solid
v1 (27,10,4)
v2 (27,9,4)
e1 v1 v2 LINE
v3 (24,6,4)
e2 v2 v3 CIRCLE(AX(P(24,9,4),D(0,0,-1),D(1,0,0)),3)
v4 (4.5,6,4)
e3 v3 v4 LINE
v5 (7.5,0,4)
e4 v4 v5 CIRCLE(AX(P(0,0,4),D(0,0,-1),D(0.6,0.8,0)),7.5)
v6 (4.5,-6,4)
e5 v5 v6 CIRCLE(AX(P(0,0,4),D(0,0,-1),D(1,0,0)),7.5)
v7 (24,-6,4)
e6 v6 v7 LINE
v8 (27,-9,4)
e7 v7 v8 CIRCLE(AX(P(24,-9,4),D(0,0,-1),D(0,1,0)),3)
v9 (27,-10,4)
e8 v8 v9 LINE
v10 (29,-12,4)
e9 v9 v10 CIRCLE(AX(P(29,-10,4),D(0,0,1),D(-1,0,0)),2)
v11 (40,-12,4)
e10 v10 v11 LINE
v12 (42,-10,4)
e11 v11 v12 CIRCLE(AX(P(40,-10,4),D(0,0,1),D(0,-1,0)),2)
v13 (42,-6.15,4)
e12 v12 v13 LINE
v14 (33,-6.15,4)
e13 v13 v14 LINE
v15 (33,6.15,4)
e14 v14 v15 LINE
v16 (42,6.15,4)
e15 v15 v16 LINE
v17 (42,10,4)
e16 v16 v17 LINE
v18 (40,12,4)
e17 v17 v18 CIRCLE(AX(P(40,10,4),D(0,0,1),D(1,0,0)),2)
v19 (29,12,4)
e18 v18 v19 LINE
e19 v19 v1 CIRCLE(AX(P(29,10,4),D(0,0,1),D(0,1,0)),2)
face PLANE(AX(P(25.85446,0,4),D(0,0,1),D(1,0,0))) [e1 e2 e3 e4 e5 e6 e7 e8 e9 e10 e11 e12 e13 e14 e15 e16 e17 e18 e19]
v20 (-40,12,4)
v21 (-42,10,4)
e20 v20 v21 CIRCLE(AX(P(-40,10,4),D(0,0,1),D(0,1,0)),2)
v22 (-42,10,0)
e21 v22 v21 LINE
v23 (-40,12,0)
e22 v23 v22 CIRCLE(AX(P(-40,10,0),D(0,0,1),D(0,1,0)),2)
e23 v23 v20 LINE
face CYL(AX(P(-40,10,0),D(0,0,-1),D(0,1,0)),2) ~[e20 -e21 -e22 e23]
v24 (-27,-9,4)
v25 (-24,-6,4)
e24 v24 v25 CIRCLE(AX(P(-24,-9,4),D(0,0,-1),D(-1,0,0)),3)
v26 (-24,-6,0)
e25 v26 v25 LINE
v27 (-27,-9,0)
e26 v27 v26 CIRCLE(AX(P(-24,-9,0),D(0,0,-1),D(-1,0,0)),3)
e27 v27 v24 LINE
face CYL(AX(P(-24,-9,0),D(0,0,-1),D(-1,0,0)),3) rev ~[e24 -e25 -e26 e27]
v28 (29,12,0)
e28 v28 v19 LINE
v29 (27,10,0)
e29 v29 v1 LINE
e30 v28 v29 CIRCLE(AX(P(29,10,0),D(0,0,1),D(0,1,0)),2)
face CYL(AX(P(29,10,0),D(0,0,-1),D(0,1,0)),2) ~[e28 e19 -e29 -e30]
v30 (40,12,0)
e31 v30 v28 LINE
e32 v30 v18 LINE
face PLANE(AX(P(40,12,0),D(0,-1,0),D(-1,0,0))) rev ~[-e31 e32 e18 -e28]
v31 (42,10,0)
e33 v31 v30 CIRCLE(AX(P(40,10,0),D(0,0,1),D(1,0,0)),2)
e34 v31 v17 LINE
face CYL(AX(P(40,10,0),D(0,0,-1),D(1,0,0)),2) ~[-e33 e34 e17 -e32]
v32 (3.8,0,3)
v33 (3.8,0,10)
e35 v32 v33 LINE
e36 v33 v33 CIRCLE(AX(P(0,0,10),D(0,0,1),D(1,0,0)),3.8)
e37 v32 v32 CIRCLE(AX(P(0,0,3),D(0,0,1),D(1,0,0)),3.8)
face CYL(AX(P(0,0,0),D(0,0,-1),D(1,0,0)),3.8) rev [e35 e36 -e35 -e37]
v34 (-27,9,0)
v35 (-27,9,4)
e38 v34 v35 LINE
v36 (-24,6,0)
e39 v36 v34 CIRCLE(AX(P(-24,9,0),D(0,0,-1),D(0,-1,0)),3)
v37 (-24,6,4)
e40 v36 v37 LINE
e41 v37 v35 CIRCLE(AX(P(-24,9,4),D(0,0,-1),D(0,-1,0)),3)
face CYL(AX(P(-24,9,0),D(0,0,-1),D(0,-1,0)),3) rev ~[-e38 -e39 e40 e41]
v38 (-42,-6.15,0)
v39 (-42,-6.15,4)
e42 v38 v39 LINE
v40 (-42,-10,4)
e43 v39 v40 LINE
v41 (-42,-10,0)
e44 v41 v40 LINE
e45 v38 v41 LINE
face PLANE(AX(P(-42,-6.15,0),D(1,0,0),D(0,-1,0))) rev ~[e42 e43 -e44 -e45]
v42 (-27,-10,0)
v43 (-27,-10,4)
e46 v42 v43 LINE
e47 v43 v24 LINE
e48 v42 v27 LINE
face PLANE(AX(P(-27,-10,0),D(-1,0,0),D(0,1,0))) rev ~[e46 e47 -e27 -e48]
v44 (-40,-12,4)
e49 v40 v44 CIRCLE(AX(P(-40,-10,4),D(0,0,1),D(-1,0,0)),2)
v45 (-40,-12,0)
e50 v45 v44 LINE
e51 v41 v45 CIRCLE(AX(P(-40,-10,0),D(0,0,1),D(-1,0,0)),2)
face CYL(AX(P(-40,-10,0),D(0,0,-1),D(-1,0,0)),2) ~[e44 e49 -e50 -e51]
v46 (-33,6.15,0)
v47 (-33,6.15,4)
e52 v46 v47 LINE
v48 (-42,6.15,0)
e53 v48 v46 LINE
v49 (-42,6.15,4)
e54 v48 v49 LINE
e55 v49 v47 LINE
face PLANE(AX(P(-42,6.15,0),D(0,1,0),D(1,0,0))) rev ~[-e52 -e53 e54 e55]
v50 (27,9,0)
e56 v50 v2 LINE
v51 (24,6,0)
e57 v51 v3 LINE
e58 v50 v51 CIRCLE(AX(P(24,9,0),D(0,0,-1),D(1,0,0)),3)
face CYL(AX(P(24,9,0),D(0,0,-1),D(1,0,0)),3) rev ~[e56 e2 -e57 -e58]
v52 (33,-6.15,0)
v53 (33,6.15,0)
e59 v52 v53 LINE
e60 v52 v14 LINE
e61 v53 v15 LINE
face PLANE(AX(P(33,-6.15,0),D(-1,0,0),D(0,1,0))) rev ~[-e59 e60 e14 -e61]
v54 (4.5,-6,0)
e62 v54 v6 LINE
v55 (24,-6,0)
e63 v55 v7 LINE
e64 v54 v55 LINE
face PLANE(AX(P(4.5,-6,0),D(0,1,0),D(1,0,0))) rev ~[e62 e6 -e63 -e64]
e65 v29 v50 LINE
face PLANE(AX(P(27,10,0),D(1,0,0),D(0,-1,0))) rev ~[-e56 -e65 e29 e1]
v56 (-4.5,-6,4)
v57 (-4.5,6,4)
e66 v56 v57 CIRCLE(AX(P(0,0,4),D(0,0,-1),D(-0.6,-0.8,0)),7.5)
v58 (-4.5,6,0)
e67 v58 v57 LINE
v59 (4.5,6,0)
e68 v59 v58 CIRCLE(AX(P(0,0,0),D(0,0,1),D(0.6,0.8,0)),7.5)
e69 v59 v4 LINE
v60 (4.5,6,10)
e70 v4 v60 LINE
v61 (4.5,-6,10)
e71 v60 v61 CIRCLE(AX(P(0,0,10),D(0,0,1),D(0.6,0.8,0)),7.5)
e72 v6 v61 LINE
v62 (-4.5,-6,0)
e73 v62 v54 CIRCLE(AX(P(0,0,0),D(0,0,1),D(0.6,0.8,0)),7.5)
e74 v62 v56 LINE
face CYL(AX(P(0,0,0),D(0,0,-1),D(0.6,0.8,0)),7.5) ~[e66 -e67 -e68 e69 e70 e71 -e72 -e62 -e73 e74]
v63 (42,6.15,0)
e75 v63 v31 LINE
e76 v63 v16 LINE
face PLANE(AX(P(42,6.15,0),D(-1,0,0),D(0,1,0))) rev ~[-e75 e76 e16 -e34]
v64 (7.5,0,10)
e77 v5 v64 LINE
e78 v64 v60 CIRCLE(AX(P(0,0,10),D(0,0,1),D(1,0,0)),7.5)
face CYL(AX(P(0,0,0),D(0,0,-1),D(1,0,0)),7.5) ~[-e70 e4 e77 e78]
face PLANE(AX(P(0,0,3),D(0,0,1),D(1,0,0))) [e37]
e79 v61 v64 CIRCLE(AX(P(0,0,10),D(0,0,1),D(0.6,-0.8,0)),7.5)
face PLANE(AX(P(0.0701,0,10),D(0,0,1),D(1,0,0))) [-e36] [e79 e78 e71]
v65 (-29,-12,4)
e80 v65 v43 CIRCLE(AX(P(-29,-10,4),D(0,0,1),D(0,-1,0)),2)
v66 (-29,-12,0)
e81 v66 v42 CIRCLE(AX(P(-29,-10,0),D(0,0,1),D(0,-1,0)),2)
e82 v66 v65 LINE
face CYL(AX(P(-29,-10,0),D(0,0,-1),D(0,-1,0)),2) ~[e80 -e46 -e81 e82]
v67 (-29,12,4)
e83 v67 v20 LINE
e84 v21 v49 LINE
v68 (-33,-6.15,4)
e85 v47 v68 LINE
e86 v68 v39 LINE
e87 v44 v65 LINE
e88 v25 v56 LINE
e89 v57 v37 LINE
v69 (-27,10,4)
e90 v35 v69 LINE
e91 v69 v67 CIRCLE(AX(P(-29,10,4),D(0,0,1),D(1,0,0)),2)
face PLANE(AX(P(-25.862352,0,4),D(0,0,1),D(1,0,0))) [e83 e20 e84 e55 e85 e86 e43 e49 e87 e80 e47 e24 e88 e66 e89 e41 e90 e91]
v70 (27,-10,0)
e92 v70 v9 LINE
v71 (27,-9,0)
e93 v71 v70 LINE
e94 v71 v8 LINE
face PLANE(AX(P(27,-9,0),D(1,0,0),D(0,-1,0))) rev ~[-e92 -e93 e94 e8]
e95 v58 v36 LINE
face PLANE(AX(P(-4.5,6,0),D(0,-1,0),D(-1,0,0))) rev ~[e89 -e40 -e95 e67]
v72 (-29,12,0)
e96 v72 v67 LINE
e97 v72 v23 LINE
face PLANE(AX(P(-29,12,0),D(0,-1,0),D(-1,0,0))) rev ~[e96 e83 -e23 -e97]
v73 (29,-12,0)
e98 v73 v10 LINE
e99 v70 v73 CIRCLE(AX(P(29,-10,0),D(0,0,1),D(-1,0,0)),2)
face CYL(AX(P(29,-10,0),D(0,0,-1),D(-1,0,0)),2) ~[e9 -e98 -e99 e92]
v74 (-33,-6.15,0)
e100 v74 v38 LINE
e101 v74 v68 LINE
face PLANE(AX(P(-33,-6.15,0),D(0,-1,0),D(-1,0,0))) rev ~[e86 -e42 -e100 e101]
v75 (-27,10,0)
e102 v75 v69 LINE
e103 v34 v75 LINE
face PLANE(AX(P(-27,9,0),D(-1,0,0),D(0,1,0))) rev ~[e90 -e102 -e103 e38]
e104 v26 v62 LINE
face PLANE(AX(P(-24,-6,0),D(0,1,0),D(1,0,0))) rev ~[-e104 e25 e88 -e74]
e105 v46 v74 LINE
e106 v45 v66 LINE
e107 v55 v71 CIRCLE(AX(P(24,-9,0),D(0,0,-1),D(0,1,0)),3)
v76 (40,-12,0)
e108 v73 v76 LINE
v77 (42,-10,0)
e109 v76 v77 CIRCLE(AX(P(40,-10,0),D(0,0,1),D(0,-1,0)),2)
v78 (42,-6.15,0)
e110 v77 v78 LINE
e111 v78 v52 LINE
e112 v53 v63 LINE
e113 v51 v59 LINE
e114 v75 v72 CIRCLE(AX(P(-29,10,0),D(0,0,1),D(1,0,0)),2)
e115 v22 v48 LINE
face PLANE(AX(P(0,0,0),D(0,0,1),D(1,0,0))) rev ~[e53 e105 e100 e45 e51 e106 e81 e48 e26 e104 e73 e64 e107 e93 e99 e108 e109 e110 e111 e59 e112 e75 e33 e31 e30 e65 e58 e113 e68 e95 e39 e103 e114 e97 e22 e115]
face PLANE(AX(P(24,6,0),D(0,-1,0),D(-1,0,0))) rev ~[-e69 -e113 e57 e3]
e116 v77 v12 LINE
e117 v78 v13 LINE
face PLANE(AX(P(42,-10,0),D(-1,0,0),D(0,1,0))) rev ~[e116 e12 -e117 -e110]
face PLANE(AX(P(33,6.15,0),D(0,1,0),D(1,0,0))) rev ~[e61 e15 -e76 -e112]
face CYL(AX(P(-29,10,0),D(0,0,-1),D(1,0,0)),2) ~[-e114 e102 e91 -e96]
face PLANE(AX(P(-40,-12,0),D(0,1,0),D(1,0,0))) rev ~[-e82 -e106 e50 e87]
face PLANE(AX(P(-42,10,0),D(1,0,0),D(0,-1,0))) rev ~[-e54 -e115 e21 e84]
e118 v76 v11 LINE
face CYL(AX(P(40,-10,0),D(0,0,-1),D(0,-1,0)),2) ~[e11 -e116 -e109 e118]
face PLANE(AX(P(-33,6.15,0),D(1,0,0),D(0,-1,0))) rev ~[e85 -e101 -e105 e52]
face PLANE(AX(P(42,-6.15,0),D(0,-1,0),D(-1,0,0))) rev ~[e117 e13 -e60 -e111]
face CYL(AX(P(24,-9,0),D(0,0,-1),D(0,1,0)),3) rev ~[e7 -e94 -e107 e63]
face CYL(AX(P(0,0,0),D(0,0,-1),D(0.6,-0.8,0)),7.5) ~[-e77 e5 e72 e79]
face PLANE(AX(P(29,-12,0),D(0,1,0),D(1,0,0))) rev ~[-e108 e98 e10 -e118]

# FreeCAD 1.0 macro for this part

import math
import FreeCAD as App
import Part
import Sketcher

V = App.Vector
Q = App.Units.Quantity

doc = App.newDocument("Part")
params = doc.addObject("Spreadsheet::Sheet", "Params")
for row, (alias, value) in enumerate([
    ("sketch1_diameter", "7.6 mm"),
    ("sketch1_radius", "7.5 mm"),
    ("pad1_length", "10 mm"),
    ("sketch2_radius", "3 mm"),
    ("sketch2_radius2", "2 mm"),
    ("sketch2_radius3", "7.5 mm"),
    ("sketch2_width", "11 mm"),
    ("sketch2_width2", "9 mm"),
    ("pad2_length", "4 mm"),
    ("sketch3_diameter", "7.6 mm"),
    ("pad3_length", "3 mm"),
], start=1):
    params.set(f"A{row}", alias)
    params.set(f"B{row}", "=" + value)
    params.setAlias(f"B{row}", alias)

body = doc.addObject("PartDesign::Body", "Body")

# Sketch on XY plane
sketch1 = doc.addObject("Sketcher::SketchObject", "Sketch")
body.addObject(sketch1)
sketch1.AttachmentSupport = (doc.XY_Plane, [""])
sketch1.MapMode = "FlatFace"
sketch1.addGeometry(Part.ArcOfCircle(Part.Circle(V(0, 0, 0), V(0, 0, 1), 7.5), math.radians(0), math.radians(53.130102)), False)
sketch1.addGeometry(Part.ArcOfCircle(Part.Circle(V(0, 0, 0), V(0, 0, 1), 7.5), math.radians(53.130102), math.radians(306.869898)), False)
sketch1.addGeometry(Part.ArcOfCircle(Part.Circle(V(0, 0, 0), V(0, 0, 1), 7.5), math.radians(-53.130102), math.radians(0)), False)
sketch1.addGeometry(Part.Circle(V(0, 0, 0), V(0, 0, 1), 3.8), False)
sketch1.addConstraint(Sketcher.Constraint("Tangent", 0, 2, 1, 1))
sketch1.addConstraint(Sketcher.Constraint("Tangent", 1, 2, 2, 1))
sketch1.addConstraint(Sketcher.Constraint("Tangent", 2, 2, 0, 1))
sketch1.addConstraint(Sketcher.Constraint("Coincident", 0, 3, -1, 1))
sketch1.addConstraint(Sketcher.Constraint("Coincident", 3, 3, -1, 1))
sketch1.addConstraint(Sketcher.Constraint("PointOnObject", 2, 2, -1))
sketch1.addConstraint(Sketcher.Constraint("Vertical", 0, 2, 1, 2))
sketch1.addConstraint(Sketcher.Constraint("Diameter", 3, Q("7.6 mm")))
sketch1.addConstraint(Sketcher.Constraint("Radius", 0, Q("7.5 mm")))
sketch1.addConstraint(Sketcher.Constraint("DistanceY", -1, 1, 0, 2, Q("6 mm")))
sketch1.setExpression("Constraints[7]", "Params.sketch1_diameter")
sketch1.setExpression("Constraints[8]", "Params.sketch1_radius")
pad1 = doc.addObject("PartDesign::Pad", "Pad")
body.addObject(pad1)
pad1.Profile = sketch1
pad1.setExpression("Length", "Params.pad1_length")

# Sketch on XY plane
sketch2 = doc.addObject("Sketcher::SketchObject", "Sketch001")
body.addObject(sketch2)
sketch2.AttachmentSupport = (doc.XY_Plane, [""])
sketch2.MapMode = "FlatFace"
sketch2.addGeometry(Part.ArcOfCircle(Part.Circle(V(0, 0, 0), V(0, 0, 1), 7.5), math.radians(126.869898), math.radians(233.130102)), False)
sketch2.addGeometry(Part.LineSegment(V(-4.5, 6, 0), V(-24, 6, 0)), False)
sketch2.addGeometry(Part.ArcOfCircle(Part.Circle(V(-24, 9, 0), V(0, 0, 1), 3), math.radians(180), math.radians(270)), False)
sketch2.addGeometry(Part.LineSegment(V(-27, 9, 0), V(-27, 10, 0)), False)
sketch2.addGeometry(Part.ArcOfCircle(Part.Circle(V(-29, 10, 0), V(0, 0, 1), 2), math.radians(0), math.radians(90)), False)
sketch2.addGeometry(Part.LineSegment(V(-29, 12, 0), V(-40, 12, 0)), False)
sketch2.addGeometry(Part.ArcOfCircle(Part.Circle(V(-40, 10, 0), V(0, 0, 1), 2), math.radians(90), math.radians(180)), False)
sketch2.addGeometry(Part.LineSegment(V(-42, 10, 0), V(-42, 6.15, 0)), False)
sketch2.addGeometry(Part.LineSegment(V(-42, 6.15, 0), V(-33, 6.15, 0)), False)
sketch2.addGeometry(Part.LineSegment(V(-33, 6.15, 0), V(-33, -6.15, 0)), False)
sketch2.addGeometry(Part.LineSegment(V(-33, -6.15, 0), V(-42, -6.15, 0)), False)
sketch2.addGeometry(Part.LineSegment(V(-42, -6.15, 0), V(-42, -10, 0)), False)
sketch2.addGeometry(Part.ArcOfCircle(Part.Circle(V(-40, -10, 0), V(0, 0, 1), 2), math.radians(180), math.radians(270)), False)
sketch2.addGeometry(Part.LineSegment(V(-40, -12, 0), V(-29, -12, 0)), False)
sketch2.addGeometry(Part.ArcOfCircle(Part.Circle(V(-29, -10, 0), V(0, 0, 1), 2), math.radians(-90), math.radians(0)), False)
sketch2.addGeometry(Part.LineSegment(V(-27, -10, 0), V(-27, -9, 0)), False)
sketch2.addGeometry(Part.ArcOfCircle(Part.Circle(V(-24, -9, 0), V(0, 0, 1), 3), math.radians(90), math.radians(180)), False)
sketch2.addGeometry(Part.LineSegment(V(-24, -6, 0), V(-4.5, -6, 0)), False)
sketch2.addGeometry(Part.ArcOfCircle(Part.Circle(V(24, 9, 0), V(0, 0, 1), 3), math.radians(-90), math.radians(0)), False)
sketch2.addGeometry(Part.LineSegment(V(24, 6, 0), V(4.5, 6, 0)), False)
sketch2.addGeometry(Part.ArcOfCircle(Part.Circle(V(0, 0, 0), V(0, 0, 1), 7.5), math.radians(0), math.radians(53.130102)), False)
sketch2.addGeometry(Part.ArcOfCircle(Part.Circle(V(0, 0, 0), V(0, 0, 1), 7.5), math.radians(-53.130102), math.radians(0)), False)
sketch2.addGeometry(Part.LineSegment(V(4.5, -6, 0), V(24, -6, 0)), False)
sketch2.addGeometry(Part.ArcOfCircle(Part.Circle(V(24, -9, 0), V(0, 0, 1), 3), math.radians(0), math.radians(90)), False)
sketch2.addGeometry(Part.LineSegment(V(27, -9, 0), V(27, -10, 0)), False)
sketch2.addGeometry(Part.ArcOfCircle(Part.Circle(V(29, -10, 0), V(0, 0, 1), 2), math.radians(180), math.radians(270)), False)
sketch2.addGeometry(Part.LineSegment(V(29, -12, 0), V(40, -12, 0)), False)
sketch2.addGeometry(Part.ArcOfCircle(Part.Circle(V(40, -10, 0), V(0, 0, 1), 2), math.radians(-90), math.radians(0)), False)
sketch2.addGeometry(Part.LineSegment(V(42, -10, 0), V(42, -6.15, 0)), False)
sketch2.addGeometry(Part.LineSegment(V(42, -6.15, 0), V(33, -6.15, 0)), False)
sketch2.addGeometry(Part.LineSegment(V(33, -6.15, 0), V(33, 6.15, 0)), False)
sketch2.addGeometry(Part.LineSegment(V(33, 6.15, 0), V(42, 6.15, 0)), False)
sketch2.addGeometry(Part.LineSegment(V(42, 6.15, 0), V(42, 10, 0)), False)
sketch2.addGeometry(Part.ArcOfCircle(Part.Circle(V(40, 10, 0), V(0, 0, 1), 2), math.radians(0), math.radians(90)), False)
sketch2.addGeometry(Part.LineSegment(V(40, 12, 0), V(29, 12, 0)), False)
sketch2.addGeometry(Part.ArcOfCircle(Part.Circle(V(29, 10, 0), V(0, 0, 1), 2), math.radians(90), math.radians(180)), False)
sketch2.addGeometry(Part.LineSegment(V(27, 10, 0), V(27, 9, 0)), False)
sketch2.addConstraint(Sketcher.Constraint("Coincident", 0, 1, 1, 1))
sketch2.addConstraint(Sketcher.Constraint("Tangent", 1, 2, 2, 2))
sketch2.addConstraint(Sketcher.Constraint("Tangent", 2, 1, 3, 1))
sketch2.addConstraint(Sketcher.Constraint("Tangent", 3, 2, 4, 1))
sketch2.addConstraint(Sketcher.Constraint("Tangent", 4, 2, 5, 1))
sketch2.addConstraint(Sketcher.Constraint("Tangent", 5, 2, 6, 1))
sketch2.addConstraint(Sketcher.Constraint("Tangent", 6, 2, 7, 1))
sketch2.addConstraint(Sketcher.Constraint("Coincident", 7, 2, 8, 1))
sketch2.addConstraint(Sketcher.Constraint("Coincident", 8, 2, 9, 1))
sketch2.addConstraint(Sketcher.Constraint("Coincident", 9, 2, 10, 1))
sketch2.addConstraint(Sketcher.Constraint("Coincident", 10, 2, 11, 1))
sketch2.addConstraint(Sketcher.Constraint("Tangent", 11, 2, 12, 1))
sketch2.addConstraint(Sketcher.Constraint("Tangent", 12, 2, 13, 1))
sketch2.addConstraint(Sketcher.Constraint("Tangent", 13, 2, 14, 1))
sketch2.addConstraint(Sketcher.Constraint("Tangent", 14, 2, 15, 1))
sketch2.addConstraint(Sketcher.Constraint("Tangent", 15, 2, 16, 2))
sketch2.addConstraint(Sketcher.Constraint("Tangent", 16, 1, 17, 1))
sketch2.addConstraint(Sketcher.Constraint("Coincident", 17, 2, 0, 2))
sketch2.addConstraint(Sketcher.Constraint("Tangent", 18, 1, 19, 1))
sketch2.addConstraint(Sketcher.Constraint("Coincident", 19, 2, 20, 2))
sketch2.addConstraint(Sketcher.Constraint("Tangent", 20, 1, 21, 2))
sketch2.addConstraint(Sketcher.Constraint("Coincident", 21, 1, 22, 1))
sketch2.addConstraint(Sketcher.Constraint("Tangent", 22, 2, 23, 2))
sketch2.addConstraint(Sketcher.Constraint("Tangent", 23, 1, 24, 1))
sketch2.addConstraint(Sketcher.Constraint("Tangent", 24, 2, 25, 1))
sketch2.addConstraint(Sketcher.Constraint("Tangent", 25, 2, 26, 1))
sketch2.addConstraint(Sketcher.Constraint("Tangent", 26, 2, 27, 1))
sketch2.addConstraint(Sketcher.Constraint("Tangent", 27, 2, 28, 1))
sketch2.addConstraint(Sketcher.Constraint("Coincident", 28, 2, 29, 1))
sketch2.addConstraint(Sketcher.Constraint("Coincident", 29, 2, 30, 1))
sketch2.addConstraint(Sketcher.Constraint("Coincident", 30, 2, 31, 1))
sketch2.addConstraint(Sketcher.Constraint("Coincident", 31, 2, 32, 1))
sketch2.addConstraint(Sketcher.Constraint("Tangent", 32, 2, 33, 1))
sketch2.addConstraint(Sketcher.Constraint("Tangent", 33, 2, 34, 1))
sketch2.addConstraint(Sketcher.Constraint("Tangent", 34, 2, 35, 1))
sketch2.addConstraint(Sketcher.Constraint("Tangent", 35, 2, 36, 1))
sketch2.addConstraint(Sketcher.Constraint("Tangent", 36, 2, 18, 2))
sketch2.addConstraint(Sketcher.Constraint("Horizontal", 1))
sketch2.addConstraint(Sketcher.Constraint("Vertical", 3))
sketch2.addConstraint(Sketcher.Constraint("Horizontal", 5))
sketch2.addConstraint(Sketcher.Constraint("Vertical", 7))
sketch2.addConstraint(Sketcher.Constraint("Horizontal", 8))
sketch2.addConstraint(Sketcher.Constraint("Vertical", 9))
sketch2.addConstraint(Sketcher.Constraint("Horizontal", 10))
sketch2.addConstraint(Sketcher.Constraint("Vertical", 11))
sketch2.addConstraint(Sketcher.Constraint("Horizontal", 13))
sketch2.addConstraint(Sketcher.Constraint("Vertical", 15))
sketch2.addConstraint(Sketcher.Constraint("Horizontal", 17))
sketch2.addConstraint(Sketcher.Constraint("Horizontal", 19))
sketch2.addConstraint(Sketcher.Constraint("Horizontal", 22))
sketch2.addConstraint(Sketcher.Constraint("Vertical", 24))
sketch2.addConstraint(Sketcher.Constraint("Horizontal", 26))
sketch2.addConstraint(Sketcher.Constraint("Vertical", 28))
sketch2.addConstraint(Sketcher.Constraint("Horizontal", 29))
sketch2.addConstraint(Sketcher.Constraint("Vertical", 30))
sketch2.addConstraint(Sketcher.Constraint("Horizontal", 31))
sketch2.addConstraint(Sketcher.Constraint("Vertical", 32))
sketch2.addConstraint(Sketcher.Constraint("Horizontal", 34))
sketch2.addConstraint(Sketcher.Constraint("Vertical", 36))
sketch2.addConstraint(Sketcher.Constraint("Coincident", 0, 3, -1, 1))
sketch2.addConstraint(Sketcher.Constraint("Coincident", 20, 3, -1, 1))
sketch2.addConstraint(Sketcher.Constraint("Equal", 4, 6))
sketch2.addConstraint(Sketcher.Constraint("Equal", 6, 12))
sketch2.addConstraint(Sketcher.Constraint("Equal", 12, 14))
sketch2.addConstraint(Sketcher.Constraint("Equal", 2, 16))
sketch2.addConstraint(Sketcher.Constraint("Equal", 16, 18))
sketch2.addConstraint(Sketcher.Constraint("Equal", 0, 20))
sketch2.addConstraint(Sketcher.Constraint("Equal", 20, 21))
sketch2.addConstraint(Sketcher.Constraint("Equal", 18, 23))
sketch2.addConstraint(Sketcher.Constraint("Equal", 14, 25))
sketch2.addConstraint(Sketcher.Constraint("Equal", 25, 27))
sketch2.addConstraint(Sketcher.Constraint("Equal", 27, 33))
sketch2.addConstraint(Sketcher.Constraint("Equal", 33, 35))
sketch2.addConstraint(Sketcher.Constraint("Symmetric", 16, 3, 18, 3, -1, 1))
sketch2.addConstraint(Sketcher.Constraint("Symmetric", 2, 3, 23, 3, -1, 1))
sketch2.addConstraint(Sketcher.Constraint("Symmetric", 6, 3, 27, 3, -1, 1))
sketch2.addConstraint(Sketcher.Constraint("Symmetric", 12, 3, 33, 3, -1, 1))
sketch2.addConstraint(Sketcher.Constraint("Symmetric", 8, 2, 29, 2, -1, 1))
sketch2.addConstraint(Sketcher.Constraint("Symmetric", 2, 3, 18, 3, -2))
sketch2.addConstraint(Sketcher.Constraint("Symmetric", 12, 3, 27, 3, -2))
sketch2.addConstraint(Sketcher.Constraint("PointOnObject", 20, 1, -1))
sketch2.addConstraint(Sketcher.Constraint("Horizontal", 10, 2, 28, 2))
sketch2.addConstraint(Sketcher.Constraint("Horizontal", 8, 2, 30, 2))
sketch2.addConstraint(Sketcher.Constraint("Radius", 2, Q("3 mm")))
sketch2.addConstraint(Sketcher.Constraint("Radius", 4, Q("2 mm")))
sketch2.addConstraint(Sketcher.Constraint("Radius", 0, Q("7.5 mm")))
sketch2.addConstraint(Sketcher.Constraint("DistanceX", 5, 2, 5, 1, Q("11 mm")))
sketch2.addConstraint(Sketcher.Constraint("DistanceX", 8, 1, 8, 2, Q("9 mm")))
sketch2.addConstraint(Sketcher.Constraint("DistanceY", 3, 1, 3, 2, Q("1 mm")))
sketch2.addConstraint(Sketcher.Constraint("DistanceX", 1, 2, 1, 1, Q("19.5 mm")))
sketch2.addConstraint(Sketcher.Constraint("DistanceY", 9, 2, 9, 1, Q("12.3 mm")))
sketch2.addConstraint(Sketcher.Constraint("DistanceX", 2, 3, -1, 1, Q("24 mm")))
sketch2.setExpression("Constraints[83]", "Params.sketch2_radius")
sketch2.setExpression("Constraints[84]", "Params.sketch2_radius2")
sketch2.setExpression("Constraints[85]", "Params.sketch2_radius3")
sketch2.setExpression("Constraints[86]", "Params.sketch2_width")
sketch2.setExpression("Constraints[87]", "Params.sketch2_width2")
pad2 = doc.addObject("PartDesign::Pad", "Pad001")
body.addObject(pad2)
pad2.Profile = sketch2
pad2.setExpression("Length", "Params.pad2_length")

# Sketch on XY plane
sketch3 = doc.addObject("Sketcher::SketchObject", "Sketch002")
body.addObject(sketch3)
sketch3.AttachmentSupport = (doc.XY_Plane, [""])
sketch3.MapMode = "FlatFace"
sketch3.addGeometry(Part.Circle(V(0, 0, 0), V(0, 0, 1), 3.8), False)
sketch3.addConstraint(Sketcher.Constraint("Coincident", 0, 3, -1, 1))
sketch3.addConstraint(Sketcher.Constraint("Diameter", 0, Q("7.6 mm")))
sketch3.setExpression("Constraints[1]", "Params.sketch3_diameter")
pad3 = doc.addObject("PartDesign::Pad", "Pad002")
body.addObject(pad3)
pad3.Profile = sketch3
pad3.setExpression("Length", "Params.pad3_length")

doc.recompute()
